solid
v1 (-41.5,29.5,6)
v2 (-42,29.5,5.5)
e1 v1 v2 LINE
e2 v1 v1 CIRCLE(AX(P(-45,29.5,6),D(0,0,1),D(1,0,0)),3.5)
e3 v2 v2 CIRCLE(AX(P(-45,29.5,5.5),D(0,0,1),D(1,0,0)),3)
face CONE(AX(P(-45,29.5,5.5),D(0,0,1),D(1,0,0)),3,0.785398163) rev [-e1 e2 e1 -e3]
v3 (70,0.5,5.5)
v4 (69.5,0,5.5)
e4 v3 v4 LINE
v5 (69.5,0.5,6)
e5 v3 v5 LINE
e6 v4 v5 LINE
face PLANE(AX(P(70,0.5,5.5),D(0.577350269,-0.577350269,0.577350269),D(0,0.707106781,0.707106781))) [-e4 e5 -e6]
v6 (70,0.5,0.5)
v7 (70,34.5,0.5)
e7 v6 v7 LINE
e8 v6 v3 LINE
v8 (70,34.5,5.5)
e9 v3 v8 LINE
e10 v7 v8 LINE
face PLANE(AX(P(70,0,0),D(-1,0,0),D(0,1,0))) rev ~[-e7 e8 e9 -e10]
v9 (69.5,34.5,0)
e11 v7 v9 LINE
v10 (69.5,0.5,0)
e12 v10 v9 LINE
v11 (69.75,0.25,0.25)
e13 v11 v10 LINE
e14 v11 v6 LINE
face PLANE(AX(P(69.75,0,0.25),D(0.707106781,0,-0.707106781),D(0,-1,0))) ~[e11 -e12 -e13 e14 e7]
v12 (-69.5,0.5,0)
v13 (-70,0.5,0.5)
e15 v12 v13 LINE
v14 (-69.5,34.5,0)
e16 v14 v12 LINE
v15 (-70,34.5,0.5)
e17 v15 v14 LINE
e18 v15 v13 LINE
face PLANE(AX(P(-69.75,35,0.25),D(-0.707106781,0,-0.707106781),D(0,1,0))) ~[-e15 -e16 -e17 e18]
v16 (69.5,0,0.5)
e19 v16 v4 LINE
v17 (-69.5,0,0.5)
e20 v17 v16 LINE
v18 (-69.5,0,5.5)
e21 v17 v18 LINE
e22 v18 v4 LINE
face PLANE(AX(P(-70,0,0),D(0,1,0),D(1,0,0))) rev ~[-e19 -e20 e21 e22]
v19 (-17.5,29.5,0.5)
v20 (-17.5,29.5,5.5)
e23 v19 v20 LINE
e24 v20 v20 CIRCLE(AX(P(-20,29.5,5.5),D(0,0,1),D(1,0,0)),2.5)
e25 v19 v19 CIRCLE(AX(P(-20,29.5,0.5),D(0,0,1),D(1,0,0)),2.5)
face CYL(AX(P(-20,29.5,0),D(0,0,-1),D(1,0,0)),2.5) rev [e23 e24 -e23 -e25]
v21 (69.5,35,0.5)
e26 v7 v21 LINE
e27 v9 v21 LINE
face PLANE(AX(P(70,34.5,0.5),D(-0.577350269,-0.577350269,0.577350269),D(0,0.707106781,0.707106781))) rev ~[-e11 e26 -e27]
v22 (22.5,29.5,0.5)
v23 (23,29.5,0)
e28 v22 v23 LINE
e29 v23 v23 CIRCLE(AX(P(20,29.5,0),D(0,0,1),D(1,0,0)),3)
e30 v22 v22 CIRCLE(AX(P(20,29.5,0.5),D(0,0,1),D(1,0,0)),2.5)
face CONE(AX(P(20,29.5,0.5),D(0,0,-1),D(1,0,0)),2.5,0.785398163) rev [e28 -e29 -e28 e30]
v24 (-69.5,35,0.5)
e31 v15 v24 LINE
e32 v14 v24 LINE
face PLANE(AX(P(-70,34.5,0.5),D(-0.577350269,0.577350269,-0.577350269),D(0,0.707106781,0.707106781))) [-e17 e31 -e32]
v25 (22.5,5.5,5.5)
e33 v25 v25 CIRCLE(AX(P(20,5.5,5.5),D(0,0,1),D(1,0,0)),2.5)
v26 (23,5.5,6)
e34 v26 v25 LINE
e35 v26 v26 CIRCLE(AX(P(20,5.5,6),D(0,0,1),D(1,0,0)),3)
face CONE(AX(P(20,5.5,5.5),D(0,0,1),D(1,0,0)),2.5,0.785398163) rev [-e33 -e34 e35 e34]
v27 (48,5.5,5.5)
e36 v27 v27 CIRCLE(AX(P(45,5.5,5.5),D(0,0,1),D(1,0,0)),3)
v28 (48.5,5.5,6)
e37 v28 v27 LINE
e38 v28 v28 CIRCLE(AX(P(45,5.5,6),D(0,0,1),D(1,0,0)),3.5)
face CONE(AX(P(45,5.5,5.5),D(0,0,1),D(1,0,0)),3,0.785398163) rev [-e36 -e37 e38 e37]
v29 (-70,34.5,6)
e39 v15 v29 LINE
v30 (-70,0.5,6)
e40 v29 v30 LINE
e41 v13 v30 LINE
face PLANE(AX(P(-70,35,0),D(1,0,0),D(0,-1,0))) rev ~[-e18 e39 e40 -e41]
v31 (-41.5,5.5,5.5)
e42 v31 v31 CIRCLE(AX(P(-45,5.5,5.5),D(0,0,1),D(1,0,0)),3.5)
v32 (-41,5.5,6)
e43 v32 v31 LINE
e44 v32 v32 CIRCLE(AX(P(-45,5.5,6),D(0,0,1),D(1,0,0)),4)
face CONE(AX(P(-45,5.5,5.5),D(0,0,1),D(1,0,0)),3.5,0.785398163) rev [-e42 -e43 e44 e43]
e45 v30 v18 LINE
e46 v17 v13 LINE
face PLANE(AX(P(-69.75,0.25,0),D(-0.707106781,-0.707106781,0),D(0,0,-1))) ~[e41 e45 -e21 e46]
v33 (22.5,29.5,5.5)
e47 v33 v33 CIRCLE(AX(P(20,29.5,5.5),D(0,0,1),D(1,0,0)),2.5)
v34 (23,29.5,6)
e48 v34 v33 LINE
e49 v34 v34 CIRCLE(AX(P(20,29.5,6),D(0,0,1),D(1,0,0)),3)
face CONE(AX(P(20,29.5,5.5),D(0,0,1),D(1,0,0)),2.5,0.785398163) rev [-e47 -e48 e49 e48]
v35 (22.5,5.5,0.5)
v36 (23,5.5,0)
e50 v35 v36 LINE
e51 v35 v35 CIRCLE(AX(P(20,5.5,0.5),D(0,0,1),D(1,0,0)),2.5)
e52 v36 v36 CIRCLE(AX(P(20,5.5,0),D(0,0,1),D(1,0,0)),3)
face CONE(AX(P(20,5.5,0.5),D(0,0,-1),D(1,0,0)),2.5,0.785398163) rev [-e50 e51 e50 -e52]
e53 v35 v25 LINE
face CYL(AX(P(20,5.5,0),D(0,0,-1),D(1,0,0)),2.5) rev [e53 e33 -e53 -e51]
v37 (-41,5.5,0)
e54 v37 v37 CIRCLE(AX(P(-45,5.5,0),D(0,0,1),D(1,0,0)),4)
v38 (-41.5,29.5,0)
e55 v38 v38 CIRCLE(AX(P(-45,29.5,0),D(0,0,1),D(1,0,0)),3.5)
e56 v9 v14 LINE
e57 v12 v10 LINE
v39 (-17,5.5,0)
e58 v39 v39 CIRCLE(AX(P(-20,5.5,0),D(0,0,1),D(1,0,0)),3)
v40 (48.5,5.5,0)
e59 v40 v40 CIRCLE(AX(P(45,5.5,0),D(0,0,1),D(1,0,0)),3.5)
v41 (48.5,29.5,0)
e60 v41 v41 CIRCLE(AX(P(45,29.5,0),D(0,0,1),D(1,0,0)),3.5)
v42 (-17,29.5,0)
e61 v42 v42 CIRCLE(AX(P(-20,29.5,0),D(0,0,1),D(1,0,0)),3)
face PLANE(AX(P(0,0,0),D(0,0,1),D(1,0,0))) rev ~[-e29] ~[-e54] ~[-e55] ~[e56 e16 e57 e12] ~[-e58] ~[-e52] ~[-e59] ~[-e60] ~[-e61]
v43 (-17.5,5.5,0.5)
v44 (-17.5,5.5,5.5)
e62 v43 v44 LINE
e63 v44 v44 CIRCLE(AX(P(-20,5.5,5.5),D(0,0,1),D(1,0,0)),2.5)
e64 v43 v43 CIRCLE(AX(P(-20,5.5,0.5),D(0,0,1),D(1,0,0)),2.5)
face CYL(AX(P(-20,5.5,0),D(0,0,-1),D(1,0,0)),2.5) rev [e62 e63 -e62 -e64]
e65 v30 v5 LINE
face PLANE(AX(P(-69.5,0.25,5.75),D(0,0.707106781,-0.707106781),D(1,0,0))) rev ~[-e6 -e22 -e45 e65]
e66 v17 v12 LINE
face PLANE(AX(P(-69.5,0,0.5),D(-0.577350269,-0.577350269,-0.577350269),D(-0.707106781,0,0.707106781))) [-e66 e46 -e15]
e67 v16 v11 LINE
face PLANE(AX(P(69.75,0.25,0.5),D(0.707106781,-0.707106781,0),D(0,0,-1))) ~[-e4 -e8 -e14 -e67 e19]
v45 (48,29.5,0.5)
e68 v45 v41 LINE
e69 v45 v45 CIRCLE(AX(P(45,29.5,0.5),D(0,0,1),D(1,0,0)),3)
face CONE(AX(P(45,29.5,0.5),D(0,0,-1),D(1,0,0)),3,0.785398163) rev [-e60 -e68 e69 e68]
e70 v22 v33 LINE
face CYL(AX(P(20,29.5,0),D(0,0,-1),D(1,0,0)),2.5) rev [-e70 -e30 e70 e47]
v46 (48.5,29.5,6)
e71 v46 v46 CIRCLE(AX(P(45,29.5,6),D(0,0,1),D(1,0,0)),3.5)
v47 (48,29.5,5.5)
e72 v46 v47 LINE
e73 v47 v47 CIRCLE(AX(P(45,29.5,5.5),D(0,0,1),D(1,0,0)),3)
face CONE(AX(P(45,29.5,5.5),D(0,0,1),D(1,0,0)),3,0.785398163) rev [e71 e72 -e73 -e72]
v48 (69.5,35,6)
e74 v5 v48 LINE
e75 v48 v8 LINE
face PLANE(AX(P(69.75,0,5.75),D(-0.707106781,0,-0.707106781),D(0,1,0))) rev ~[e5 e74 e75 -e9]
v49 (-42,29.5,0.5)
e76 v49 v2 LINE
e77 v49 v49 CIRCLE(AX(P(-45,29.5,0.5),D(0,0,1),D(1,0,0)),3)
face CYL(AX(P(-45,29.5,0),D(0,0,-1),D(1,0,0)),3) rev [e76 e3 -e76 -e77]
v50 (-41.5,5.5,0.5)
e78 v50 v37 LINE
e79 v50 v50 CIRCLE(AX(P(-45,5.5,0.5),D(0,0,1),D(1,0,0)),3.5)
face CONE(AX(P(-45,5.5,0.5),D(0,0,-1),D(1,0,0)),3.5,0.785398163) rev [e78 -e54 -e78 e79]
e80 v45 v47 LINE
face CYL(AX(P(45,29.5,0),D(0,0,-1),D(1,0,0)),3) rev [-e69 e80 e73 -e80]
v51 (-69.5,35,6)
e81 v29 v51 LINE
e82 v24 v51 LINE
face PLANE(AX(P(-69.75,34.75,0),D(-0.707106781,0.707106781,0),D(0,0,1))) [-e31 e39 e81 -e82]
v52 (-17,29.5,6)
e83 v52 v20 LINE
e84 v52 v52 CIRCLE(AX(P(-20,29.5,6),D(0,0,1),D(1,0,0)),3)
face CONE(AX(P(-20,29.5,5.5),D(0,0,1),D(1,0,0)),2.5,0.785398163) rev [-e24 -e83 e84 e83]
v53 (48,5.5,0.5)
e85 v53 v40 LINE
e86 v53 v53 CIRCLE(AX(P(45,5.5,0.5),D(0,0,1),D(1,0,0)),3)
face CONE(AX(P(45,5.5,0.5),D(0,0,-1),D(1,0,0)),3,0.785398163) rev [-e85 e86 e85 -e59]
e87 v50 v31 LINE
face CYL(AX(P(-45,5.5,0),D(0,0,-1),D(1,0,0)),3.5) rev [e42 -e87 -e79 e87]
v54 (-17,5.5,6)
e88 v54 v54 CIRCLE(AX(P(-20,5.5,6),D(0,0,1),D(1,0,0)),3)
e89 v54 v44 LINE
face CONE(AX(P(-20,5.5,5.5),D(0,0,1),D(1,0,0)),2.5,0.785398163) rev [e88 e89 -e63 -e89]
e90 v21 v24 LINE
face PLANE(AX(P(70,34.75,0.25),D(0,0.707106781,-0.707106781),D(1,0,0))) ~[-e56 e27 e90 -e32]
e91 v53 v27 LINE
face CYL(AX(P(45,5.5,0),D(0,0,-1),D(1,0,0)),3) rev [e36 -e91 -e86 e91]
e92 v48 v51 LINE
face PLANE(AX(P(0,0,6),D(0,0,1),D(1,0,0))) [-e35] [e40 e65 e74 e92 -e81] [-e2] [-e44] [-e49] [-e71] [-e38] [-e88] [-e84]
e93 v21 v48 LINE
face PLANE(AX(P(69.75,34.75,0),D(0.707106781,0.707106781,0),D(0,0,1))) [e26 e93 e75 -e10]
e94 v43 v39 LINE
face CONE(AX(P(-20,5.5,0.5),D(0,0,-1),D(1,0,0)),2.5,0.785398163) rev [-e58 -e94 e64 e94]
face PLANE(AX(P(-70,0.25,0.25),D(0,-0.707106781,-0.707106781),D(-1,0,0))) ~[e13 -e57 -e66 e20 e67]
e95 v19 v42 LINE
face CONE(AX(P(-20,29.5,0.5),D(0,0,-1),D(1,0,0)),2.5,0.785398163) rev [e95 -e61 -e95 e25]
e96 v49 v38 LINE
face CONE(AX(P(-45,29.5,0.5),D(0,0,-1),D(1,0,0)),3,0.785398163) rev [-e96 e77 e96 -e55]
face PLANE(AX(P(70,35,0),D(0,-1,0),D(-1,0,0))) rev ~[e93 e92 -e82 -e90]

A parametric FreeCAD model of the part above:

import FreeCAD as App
import Part
import Sketcher
Q = App.Units.Quantity


def edges_at(feature, points):
    """Names of the edges that pass closest to the given points."""
    edges = feature.Shape.Edges
    near = lambda p: min(range(len(edges)), key=lambda i: edges[i].distToShape(Part.Vertex(*p))[0])
    return sorted({f"Edge{near(p) + 1}" for p in points})


def add_polygon(sketch, points):
    """Adds a closed chain of lines whose ends are joined by coincident constraints."""
    first, n = sketch.GeometryCount, len(points)
    for a, b in zip(points, points[1:] + points[:1]):
        sketch.addGeometry(Part.LineSegment(App.Vector(*a, 0), App.Vector(*b, 0)), False)
    for i in range(n):
        sketch.addConstraint(Sketcher.Constraint("Coincident", first + i, 2, first + (i + 1) % n, 1))

doc = App.newDocument("Part")
body = doc.addObject("PartDesign::Body", "Body")

# Sketch on XY plane
sketch1 = body.newObject("Sketcher::SketchObject", "Sketch")
sketch1.AttachmentSupport = (doc.getObject("XY_Plane"), [""])
sketch1.MapMode = "FlatFace"
add_polygon(sketch1, [(-70, 35), (-70, 0), (70, 0), (70, 35)])  # lines 0-3
sketch1.addGeometry(Part.Circle(App.Vector(-45, 5.5, 0), App.Vector(0, 0, 1), 3.5), False)  # 4
sketch1.addGeometry(Part.Circle(App.Vector(-20, 5.5, 0), App.Vector(0, 0, 1), 2.5), False)  # 5
sketch1.addGeometry(Part.Circle(App.Vector(20, 5.5, 0), App.Vector(0, 0, 1), 2.5), False)  # 6
sketch1.addGeometry(Part.Circle(App.Vector(45, 5.5, 0), App.Vector(0, 0, 1), 3), False)  # 7
sketch1.addGeometry(Part.Circle(App.Vector(-45, 29.5, 0), App.Vector(0, 0, 1), 3), False)  # 8
sketch1.addGeometry(Part.Circle(App.Vector(-20, 29.5, 0), App.Vector(0, 0, 1), 2.5), False)  # 9
sketch1.addGeometry(Part.Circle(App.Vector(20, 29.5, 0), App.Vector(0, 0, 1), 2.5), False)  # 10
sketch1.addGeometry(Part.Circle(App.Vector(45, 29.5, 0), App.Vector(0, 0, 1), 3), False)  # 11
sketch1.addConstraint([
    Sketcher.Constraint("Vertical", 0),
    Sketcher.Constraint("Horizontal", 1),
    Sketcher.Constraint("Vertical", 2),
    Sketcher.Constraint("Horizontal", 3),
    Sketcher.Constraint("Equal", 5, 6),
    Sketcher.Constraint("Equal", 7, 8),
    Sketcher.Constraint("Equal", 6, 9),
    Sketcher.Constraint("Equal", 9, 10),
    Sketcher.Constraint("Equal", 8, 11),
    Sketcher.Constraint("Symmetric", 0, 2, 1, 2, -1, 1),
    Sketcher.Constraint("Symmetric", 5, 3, 6, 3, -2),
    Sketcher.Constraint("Symmetric", 4, 3, 7, 3, -2),
    Sketcher.Constraint("Symmetric", 9, 3, 10, 3, -2),
    Sketcher.Constraint("Symmetric", 8, 3, 11, 3, -2),
    Sketcher.Constraint("Horizontal", 4, 3, 5, 3),
    Sketcher.Constraint("Horizontal", 8, 3, 9, 3),
    Sketcher.Constraint("Vertical", 4, 3, 8, 3),
    Sketcher.Constraint("Vertical", 5, 3, 9, 3),
    Sketcher.Constraint("Diameter", 4, Q("7 mm")),
    Sketcher.Constraint("Diameter", 5, Q("5 mm")),
    Sketcher.Constraint("Diameter", 7, Q("6 mm")),
    Sketcher.Constraint("DistanceX", 1, 1, 1, 2, Q("140 mm")),
    Sketcher.Constraint("DistanceY", 0, 2, 0, 1, Q("35 mm")),
    Sketcher.Constraint("DistanceX", 5, 3, 6, 3, Q("40 mm")),
    Sketcher.Constraint("DistanceX", 4, 3, 7, 3, Q("90 mm")),
    Sketcher.Constraint("DistanceY", 4, 3, 8, 3, Q("24 mm")),
    Sketcher.Constraint("DistanceY", -1, 1, 4, 3, Q("5.5 mm")),
])
pad1 = body.newObject("PartDesign::Pad", "Pad")
pad1.Profile = sketch1
pad1.Length = 6
doc.recompute()

chamfer = body.newObject("PartDesign::Chamfer", "Chamfer")
chamfer.Base = (pad1, edges_at(pad1, [
    (0, 35, 0),
    (-70, 17.5, 0),
    (0, 0, 0),
    (70, 17.5, 0),
    (70, 35, 3),
    (-70, 35, 3),
    (-70, 0, 3),
    (-47.797, 30.585, 0),
    (-48.263, 6.766, 0),
    (-22.331, 6.404, 0),
    (-22.331, 30.404, 0),
    (17.669, 30.404, 0),
    (17.669, 6.404, 0),
    (42.203, 6.585, 0),
    (42.203, 30.585, 0),
]))
chamfer.Size = 0.5
doc.recompute()

chamfer2 = body.newObject("PartDesign::Chamfer", "Chamfer001")
chamfer2.Base = (chamfer, edges_at(chamfer, [
    (0.25, 0, 6),
    (70, 0, 3.25),
    (70, 17.25, 6),
    (42.203, 30.585, 6),
    (42.203, 6.585, 6),
    (17.669, 6.404, 6),
    (17.669, 30.404, 6),
    (-22.331, 30.404, 6),
    (-22.331, 6.404, 6),
    (-48.263, 6.766, 6),
    (-47.797, 30.585, 6),
]))
chamfer2.Size = 0.5

doc.recompute()
